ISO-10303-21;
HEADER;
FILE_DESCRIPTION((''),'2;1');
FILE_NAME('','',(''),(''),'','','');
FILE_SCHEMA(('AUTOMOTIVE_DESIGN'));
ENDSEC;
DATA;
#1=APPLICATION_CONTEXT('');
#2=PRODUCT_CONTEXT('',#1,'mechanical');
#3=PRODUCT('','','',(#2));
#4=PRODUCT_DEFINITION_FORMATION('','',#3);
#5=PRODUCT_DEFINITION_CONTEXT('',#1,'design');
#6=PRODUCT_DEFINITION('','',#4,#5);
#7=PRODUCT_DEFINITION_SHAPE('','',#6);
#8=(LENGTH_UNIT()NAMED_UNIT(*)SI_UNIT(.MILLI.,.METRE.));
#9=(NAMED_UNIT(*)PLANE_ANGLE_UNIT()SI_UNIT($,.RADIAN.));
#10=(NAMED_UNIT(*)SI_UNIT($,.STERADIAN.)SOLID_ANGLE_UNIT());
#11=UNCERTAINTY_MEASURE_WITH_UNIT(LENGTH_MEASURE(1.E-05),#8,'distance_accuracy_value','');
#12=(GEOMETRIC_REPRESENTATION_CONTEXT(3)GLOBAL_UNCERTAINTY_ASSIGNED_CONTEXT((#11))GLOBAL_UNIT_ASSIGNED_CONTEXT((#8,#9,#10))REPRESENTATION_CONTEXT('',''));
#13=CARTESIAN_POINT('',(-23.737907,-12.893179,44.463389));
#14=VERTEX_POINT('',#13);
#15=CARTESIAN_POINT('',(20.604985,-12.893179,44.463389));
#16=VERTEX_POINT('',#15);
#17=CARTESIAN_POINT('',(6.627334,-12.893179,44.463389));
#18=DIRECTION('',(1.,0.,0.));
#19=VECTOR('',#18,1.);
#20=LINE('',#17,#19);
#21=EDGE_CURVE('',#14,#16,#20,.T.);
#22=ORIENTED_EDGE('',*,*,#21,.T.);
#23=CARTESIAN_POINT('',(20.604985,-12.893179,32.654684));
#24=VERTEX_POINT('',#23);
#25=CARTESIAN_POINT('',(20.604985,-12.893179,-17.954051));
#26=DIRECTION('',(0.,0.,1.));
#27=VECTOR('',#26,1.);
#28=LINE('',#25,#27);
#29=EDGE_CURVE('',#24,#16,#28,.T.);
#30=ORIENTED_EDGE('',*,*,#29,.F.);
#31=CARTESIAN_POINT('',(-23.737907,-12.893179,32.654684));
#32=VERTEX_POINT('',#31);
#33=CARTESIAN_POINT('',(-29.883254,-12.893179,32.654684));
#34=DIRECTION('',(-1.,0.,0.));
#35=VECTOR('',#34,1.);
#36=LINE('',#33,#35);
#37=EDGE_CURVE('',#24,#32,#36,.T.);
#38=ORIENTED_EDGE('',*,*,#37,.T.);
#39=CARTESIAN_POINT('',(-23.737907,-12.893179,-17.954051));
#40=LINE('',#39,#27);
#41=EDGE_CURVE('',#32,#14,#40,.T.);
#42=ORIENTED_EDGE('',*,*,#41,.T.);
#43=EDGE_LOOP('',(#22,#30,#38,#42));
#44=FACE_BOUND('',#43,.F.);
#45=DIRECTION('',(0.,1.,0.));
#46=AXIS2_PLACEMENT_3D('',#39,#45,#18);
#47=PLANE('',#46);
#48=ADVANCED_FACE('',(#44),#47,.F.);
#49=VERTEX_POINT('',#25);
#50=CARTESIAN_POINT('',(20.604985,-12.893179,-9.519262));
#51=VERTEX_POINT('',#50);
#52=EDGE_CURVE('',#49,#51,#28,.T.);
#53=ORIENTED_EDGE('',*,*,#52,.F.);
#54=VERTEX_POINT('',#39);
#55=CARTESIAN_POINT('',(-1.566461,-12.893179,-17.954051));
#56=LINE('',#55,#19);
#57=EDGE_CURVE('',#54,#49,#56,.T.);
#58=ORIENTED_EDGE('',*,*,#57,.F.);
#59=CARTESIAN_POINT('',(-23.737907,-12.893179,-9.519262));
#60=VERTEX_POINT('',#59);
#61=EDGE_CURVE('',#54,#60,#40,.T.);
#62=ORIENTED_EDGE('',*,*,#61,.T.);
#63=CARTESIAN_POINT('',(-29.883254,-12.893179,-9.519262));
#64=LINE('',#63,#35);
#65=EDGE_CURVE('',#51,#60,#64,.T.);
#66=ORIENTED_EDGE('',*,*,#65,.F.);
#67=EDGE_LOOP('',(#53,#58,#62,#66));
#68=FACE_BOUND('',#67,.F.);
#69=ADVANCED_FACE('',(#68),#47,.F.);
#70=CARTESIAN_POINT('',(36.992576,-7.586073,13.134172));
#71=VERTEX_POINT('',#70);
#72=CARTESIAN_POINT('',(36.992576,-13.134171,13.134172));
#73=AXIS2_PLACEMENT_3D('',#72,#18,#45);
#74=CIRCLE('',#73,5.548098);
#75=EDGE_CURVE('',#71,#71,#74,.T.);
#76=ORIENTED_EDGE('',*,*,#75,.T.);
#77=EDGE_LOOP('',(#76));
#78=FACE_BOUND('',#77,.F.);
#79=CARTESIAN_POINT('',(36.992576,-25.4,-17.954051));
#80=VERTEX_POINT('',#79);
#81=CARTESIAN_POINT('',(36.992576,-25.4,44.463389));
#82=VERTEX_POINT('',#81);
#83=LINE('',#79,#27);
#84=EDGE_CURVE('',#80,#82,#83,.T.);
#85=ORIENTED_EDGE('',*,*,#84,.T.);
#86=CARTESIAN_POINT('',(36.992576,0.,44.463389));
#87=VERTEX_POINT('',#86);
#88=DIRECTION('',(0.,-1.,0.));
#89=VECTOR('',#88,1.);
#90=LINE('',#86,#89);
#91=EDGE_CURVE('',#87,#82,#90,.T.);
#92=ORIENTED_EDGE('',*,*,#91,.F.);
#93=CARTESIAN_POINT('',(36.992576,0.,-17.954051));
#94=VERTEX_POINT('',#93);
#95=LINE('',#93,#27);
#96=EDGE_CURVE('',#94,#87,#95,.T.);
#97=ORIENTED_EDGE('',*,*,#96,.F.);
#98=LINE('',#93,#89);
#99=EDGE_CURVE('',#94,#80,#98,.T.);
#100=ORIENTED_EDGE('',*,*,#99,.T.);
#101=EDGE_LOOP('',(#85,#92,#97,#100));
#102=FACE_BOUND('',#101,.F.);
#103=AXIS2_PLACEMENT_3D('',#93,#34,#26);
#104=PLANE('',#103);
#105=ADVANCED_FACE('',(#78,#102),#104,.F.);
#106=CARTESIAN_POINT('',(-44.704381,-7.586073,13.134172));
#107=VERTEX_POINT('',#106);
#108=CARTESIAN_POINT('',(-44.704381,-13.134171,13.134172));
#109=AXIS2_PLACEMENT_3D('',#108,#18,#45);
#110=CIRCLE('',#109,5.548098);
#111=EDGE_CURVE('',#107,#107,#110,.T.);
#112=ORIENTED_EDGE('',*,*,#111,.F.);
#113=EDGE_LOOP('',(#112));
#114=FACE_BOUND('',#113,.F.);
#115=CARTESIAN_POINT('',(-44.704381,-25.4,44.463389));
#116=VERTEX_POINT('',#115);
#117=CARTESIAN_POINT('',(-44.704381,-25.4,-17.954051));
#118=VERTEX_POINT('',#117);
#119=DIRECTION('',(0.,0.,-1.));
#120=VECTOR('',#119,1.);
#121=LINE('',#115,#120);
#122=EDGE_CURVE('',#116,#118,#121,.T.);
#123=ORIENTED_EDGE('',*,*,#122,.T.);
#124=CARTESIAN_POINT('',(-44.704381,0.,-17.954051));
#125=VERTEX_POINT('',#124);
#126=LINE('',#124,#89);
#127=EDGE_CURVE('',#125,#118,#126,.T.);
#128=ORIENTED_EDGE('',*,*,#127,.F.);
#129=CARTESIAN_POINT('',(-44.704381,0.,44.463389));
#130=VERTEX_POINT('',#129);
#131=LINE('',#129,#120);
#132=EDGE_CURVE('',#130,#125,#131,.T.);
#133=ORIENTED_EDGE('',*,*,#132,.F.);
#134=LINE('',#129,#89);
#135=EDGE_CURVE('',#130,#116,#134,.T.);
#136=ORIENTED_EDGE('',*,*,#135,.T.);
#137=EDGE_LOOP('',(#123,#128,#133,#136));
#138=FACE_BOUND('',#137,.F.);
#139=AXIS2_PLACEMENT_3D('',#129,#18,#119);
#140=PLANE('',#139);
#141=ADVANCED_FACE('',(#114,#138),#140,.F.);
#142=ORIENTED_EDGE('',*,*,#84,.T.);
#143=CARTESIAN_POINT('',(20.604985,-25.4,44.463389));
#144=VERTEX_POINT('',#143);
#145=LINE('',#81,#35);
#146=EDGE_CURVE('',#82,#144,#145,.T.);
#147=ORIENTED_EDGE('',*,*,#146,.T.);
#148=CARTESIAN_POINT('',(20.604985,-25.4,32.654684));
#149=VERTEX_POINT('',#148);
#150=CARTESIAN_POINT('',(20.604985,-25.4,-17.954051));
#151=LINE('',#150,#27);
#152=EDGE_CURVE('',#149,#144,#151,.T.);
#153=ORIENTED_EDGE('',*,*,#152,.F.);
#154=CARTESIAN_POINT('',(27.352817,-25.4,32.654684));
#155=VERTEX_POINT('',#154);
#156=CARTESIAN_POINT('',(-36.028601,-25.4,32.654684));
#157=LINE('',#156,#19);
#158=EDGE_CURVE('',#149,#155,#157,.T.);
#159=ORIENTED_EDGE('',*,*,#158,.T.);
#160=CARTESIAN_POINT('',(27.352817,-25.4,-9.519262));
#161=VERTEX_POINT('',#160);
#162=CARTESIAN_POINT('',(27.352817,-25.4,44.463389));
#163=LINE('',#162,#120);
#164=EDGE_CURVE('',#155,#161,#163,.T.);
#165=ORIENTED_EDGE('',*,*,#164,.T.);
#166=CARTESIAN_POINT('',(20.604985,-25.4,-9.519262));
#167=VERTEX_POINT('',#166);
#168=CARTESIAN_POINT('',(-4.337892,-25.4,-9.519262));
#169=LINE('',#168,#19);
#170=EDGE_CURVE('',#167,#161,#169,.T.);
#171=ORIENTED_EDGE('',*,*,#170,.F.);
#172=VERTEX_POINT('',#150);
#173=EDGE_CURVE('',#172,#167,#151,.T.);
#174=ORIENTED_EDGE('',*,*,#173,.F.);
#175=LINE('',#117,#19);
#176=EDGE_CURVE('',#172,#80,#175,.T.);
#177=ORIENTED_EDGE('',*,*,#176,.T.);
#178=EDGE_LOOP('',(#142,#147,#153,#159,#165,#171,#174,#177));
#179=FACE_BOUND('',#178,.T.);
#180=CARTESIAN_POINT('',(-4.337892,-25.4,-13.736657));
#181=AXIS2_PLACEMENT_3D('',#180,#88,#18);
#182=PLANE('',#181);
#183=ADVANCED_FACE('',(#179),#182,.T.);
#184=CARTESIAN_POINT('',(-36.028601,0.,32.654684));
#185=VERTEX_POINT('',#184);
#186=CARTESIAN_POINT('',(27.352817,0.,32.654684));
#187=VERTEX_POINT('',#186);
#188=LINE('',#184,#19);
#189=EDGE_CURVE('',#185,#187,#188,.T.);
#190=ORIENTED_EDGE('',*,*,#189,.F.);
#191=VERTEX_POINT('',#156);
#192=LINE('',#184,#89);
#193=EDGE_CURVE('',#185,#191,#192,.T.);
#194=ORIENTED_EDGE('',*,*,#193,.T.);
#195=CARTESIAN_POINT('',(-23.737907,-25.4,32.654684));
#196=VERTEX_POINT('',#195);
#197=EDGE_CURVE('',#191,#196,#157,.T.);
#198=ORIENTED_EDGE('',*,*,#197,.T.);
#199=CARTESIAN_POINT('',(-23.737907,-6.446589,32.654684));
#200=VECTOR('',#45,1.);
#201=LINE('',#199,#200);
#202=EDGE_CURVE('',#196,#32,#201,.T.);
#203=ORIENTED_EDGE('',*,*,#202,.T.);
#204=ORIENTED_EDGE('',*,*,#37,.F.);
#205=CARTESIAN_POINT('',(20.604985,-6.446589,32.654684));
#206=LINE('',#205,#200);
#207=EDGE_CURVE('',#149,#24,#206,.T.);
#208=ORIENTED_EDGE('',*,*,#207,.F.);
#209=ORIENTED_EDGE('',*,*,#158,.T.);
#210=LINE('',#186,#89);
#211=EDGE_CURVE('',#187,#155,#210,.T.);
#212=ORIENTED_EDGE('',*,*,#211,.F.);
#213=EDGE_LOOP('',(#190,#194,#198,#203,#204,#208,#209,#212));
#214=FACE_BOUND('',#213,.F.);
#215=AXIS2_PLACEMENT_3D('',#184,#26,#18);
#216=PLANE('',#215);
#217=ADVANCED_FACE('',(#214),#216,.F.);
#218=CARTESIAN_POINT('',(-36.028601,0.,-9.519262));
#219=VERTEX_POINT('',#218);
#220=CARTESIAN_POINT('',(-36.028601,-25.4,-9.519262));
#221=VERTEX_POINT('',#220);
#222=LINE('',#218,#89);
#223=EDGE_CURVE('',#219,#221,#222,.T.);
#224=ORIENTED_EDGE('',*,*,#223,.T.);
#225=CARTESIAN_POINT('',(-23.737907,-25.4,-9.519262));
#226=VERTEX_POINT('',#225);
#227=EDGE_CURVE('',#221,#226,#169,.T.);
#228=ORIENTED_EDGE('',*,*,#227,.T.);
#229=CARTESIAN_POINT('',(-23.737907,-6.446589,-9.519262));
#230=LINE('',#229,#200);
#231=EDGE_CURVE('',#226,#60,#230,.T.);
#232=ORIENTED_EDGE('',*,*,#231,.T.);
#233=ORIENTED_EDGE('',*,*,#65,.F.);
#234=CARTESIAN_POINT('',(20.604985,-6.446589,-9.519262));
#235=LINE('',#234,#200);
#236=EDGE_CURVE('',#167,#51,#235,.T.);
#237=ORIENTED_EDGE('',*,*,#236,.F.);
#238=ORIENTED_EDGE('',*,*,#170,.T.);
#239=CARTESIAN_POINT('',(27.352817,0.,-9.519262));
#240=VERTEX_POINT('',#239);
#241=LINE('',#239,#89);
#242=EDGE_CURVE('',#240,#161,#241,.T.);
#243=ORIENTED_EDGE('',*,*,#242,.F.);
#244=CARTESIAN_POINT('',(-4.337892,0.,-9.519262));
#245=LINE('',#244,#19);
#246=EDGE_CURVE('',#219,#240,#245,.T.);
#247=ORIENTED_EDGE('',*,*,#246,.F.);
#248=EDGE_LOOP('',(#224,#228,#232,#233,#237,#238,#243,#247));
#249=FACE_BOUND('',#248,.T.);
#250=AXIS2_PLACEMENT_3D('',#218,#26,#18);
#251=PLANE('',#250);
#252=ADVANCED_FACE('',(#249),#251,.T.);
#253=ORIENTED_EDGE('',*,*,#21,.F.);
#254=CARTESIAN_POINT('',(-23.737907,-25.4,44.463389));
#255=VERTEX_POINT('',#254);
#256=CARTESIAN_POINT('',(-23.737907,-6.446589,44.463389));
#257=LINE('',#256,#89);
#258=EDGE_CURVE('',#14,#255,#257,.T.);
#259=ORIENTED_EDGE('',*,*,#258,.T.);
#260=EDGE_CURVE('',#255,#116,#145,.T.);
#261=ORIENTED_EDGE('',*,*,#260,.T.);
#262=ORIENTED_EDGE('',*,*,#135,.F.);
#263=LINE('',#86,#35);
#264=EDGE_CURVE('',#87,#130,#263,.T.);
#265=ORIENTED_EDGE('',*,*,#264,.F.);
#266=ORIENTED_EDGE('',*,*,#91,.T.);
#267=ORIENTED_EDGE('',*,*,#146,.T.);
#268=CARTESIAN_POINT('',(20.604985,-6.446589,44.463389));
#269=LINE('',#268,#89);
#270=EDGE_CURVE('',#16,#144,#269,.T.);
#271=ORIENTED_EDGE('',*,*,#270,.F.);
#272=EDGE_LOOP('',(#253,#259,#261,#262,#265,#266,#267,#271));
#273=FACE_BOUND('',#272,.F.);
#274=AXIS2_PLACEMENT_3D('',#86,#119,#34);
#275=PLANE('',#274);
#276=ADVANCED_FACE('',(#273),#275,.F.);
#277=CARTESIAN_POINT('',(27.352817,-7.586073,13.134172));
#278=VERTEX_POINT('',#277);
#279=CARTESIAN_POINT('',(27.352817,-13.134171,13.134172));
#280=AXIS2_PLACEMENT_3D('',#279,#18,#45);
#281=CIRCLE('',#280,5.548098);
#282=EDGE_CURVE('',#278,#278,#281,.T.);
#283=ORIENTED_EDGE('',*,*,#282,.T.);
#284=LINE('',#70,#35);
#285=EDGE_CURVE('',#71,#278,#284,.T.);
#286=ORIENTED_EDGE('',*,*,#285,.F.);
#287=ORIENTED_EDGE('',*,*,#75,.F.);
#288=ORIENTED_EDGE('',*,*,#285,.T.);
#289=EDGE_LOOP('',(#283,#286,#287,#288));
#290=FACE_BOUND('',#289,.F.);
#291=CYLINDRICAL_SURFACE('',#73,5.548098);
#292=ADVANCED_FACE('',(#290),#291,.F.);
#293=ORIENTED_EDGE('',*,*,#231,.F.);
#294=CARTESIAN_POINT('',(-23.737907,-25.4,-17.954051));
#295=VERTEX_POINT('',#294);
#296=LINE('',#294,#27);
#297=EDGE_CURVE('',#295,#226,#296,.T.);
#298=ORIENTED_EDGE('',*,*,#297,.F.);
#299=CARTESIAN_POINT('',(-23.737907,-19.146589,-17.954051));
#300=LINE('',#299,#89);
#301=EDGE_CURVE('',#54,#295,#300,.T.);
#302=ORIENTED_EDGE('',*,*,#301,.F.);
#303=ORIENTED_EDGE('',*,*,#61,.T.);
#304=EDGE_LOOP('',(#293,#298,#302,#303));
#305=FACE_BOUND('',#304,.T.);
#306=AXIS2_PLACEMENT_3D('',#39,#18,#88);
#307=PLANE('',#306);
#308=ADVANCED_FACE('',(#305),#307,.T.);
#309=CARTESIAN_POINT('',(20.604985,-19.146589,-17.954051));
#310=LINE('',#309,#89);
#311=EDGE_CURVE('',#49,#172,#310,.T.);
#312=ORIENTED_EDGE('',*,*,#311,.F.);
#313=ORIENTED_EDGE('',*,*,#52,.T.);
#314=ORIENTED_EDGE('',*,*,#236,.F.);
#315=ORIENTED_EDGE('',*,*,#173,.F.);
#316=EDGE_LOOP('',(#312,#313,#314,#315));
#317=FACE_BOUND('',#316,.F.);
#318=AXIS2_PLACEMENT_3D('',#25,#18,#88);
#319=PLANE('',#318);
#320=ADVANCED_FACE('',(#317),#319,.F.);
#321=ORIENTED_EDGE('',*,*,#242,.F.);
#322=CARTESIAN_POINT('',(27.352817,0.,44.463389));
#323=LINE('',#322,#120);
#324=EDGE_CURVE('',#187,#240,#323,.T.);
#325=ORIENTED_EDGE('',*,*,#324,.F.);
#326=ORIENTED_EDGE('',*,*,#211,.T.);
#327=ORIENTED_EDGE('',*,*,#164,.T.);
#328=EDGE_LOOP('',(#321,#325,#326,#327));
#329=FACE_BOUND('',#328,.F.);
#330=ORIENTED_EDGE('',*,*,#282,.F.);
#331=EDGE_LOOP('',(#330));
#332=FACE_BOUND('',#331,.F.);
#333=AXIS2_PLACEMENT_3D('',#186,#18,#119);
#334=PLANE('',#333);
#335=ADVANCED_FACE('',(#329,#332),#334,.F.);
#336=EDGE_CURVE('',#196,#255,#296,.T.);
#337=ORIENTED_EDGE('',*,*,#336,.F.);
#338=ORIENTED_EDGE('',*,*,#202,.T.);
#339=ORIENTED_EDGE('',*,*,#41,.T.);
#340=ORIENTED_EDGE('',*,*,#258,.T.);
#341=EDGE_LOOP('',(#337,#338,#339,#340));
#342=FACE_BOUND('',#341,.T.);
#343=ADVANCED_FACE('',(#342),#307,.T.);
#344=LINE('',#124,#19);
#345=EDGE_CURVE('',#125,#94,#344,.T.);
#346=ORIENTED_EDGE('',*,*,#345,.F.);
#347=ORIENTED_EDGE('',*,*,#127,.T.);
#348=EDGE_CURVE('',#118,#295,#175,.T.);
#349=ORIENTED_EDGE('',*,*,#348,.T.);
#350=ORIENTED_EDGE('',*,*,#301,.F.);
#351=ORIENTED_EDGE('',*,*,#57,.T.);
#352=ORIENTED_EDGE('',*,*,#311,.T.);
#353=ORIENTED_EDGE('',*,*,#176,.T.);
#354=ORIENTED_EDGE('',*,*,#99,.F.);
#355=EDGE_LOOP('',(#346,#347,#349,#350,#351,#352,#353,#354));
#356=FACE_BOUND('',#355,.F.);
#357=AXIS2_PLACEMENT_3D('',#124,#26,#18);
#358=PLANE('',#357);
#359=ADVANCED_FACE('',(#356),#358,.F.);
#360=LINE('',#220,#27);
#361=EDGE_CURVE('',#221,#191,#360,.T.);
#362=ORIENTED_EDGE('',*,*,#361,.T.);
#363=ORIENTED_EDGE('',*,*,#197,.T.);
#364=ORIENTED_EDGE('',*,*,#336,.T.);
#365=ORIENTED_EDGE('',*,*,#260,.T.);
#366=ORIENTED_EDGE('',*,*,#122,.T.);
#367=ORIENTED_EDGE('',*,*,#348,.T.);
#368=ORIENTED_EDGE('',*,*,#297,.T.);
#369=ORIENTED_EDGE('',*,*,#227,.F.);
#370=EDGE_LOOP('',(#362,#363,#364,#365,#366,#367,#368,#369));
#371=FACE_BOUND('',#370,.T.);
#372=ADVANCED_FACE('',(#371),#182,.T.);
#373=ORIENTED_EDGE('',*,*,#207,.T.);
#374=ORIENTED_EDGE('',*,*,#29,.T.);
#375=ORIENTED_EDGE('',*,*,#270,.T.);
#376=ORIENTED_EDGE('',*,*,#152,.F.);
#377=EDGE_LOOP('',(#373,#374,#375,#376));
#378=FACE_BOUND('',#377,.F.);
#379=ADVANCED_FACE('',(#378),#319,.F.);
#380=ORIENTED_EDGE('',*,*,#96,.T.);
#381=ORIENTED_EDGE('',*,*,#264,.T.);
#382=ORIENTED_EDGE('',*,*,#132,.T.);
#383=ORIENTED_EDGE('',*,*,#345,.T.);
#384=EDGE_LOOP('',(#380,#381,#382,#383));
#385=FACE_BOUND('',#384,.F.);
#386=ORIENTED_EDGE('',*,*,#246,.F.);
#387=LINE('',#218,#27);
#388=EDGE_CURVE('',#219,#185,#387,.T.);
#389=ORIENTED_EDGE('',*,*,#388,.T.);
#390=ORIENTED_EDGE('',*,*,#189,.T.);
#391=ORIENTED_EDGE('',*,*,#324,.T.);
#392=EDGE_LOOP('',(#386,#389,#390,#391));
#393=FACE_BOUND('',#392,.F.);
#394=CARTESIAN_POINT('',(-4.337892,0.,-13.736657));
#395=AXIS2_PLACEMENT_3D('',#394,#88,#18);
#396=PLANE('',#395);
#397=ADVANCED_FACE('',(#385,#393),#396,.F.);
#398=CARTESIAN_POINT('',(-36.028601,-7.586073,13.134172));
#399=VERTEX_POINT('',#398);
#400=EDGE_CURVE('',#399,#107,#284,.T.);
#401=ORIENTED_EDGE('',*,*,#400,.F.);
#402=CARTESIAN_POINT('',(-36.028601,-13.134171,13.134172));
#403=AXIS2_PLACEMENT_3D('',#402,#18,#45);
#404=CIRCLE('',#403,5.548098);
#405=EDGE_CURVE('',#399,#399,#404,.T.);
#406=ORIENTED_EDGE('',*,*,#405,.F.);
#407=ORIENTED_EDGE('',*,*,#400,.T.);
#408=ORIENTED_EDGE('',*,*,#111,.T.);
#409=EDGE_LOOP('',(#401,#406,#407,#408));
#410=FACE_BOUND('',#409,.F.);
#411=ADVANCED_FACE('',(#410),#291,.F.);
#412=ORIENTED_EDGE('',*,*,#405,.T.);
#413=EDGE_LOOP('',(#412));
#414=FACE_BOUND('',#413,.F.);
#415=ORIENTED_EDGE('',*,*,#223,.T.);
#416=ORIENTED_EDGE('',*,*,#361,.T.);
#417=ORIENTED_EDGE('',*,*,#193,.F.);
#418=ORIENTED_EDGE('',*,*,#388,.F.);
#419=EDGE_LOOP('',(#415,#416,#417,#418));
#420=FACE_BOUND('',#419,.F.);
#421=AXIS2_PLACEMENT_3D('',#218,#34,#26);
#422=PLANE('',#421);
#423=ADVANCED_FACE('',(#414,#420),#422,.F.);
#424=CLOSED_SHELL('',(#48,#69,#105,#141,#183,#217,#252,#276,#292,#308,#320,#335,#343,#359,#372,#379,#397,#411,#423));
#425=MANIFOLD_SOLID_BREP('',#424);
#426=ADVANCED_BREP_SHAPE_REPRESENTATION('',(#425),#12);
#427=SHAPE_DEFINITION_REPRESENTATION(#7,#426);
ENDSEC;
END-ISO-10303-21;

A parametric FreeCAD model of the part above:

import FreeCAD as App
import Part
import Sketcher
from FreeCAD import Vector
Q = App.Units.Quantity

doc = App.newDocument("Part")
body = doc.addObject("PartDesign::Body", "Body")

# Sketch on XZ plane
sketch1 = body.newObject("Sketcher::SketchObject", "Sketch")
sketch1.AttachmentSupport = (doc.getObject("XZ_Plane"), [""])
sketch1.MapMode = "FlatFace"
sketch1.addGeometry([
    Part.LineSegment(Vector(-44.704381, -17.954051, 0), Vector(36.992576, -17.954051, 0)),  # 0
    Part.LineSegment(Vector(36.992576, -17.954051, 0), Vector(36.992576, 44.463389, 0)),  # 1
    Part.LineSegment(Vector(36.992576, 44.463389, 0), Vector(-44.704381, 44.463389, 0)),  # 2
    Part.LineSegment(Vector(-44.704381, 44.463389, 0), Vector(-44.704381, -17.954051, 0)),  # 3
    Part.LineSegment(Vector(27.352817, -9.519262, 0), Vector(-36.028601, -9.519262, 0)),  # 4
    Part.LineSegment(Vector(-36.028601, -9.519262, 0), Vector(-36.028601, 32.654684, 0)),  # 5
    Part.LineSegment(Vector(-36.028601, 32.654684, 0), Vector(27.352817, 32.654684, 0)),  # 6
    Part.LineSegment(Vector(27.352817, 32.654684, 0), Vector(27.352817, -9.519262, 0)),  # 7
], False)
sketch1.addConstraint([
    Sketcher.Constraint("Coincident", 0, 2, 1, 1),
    Sketcher.Constraint("Coincident", 1, 2, 2, 1),
    Sketcher.Constraint("Coincident", 2, 2, 3, 1),
    Sketcher.Constraint("Coincident", 3, 2, 0, 1),
    Sketcher.Constraint("Coincident", 4, 2, 5, 1),
    Sketcher.Constraint("Coincident", 5, 2, 6, 1),
    Sketcher.Constraint("Coincident", 6, 2, 7, 1),
    Sketcher.Constraint("Coincident", 7, 2, 4, 1),
    Sketcher.Constraint("Horizontal", 0),
    Sketcher.Constraint("Vertical", 1),
    Sketcher.Constraint("Horizontal", 2),
    Sketcher.Constraint("Vertical", 3),
    Sketcher.Constraint("Horizontal", 4),
    Sketcher.Constraint("Vertical", 5),
    Sketcher.Constraint("Horizontal", 6),
    Sketcher.Constraint("Vertical", 7),
    Sketcher.Constraint("DistanceX", 4, 2, 4, 1, 63.381419),
    Sketcher.Constraint("DistanceY", 1, 1, 1, 2, 62.41744),
    Sketcher.Constraint("DistanceX", 4, 2, -1, 1, 36.028601),
    Sketcher.Constraint("DistanceX", 2, 2, 6, 2, 72.057199),
    Sketcher.Constraint("DistanceX", 0, 1, 0, 2, 81.696957),
    Sketcher.Constraint("DistanceY", 5, 1, 5, 2, 42.173946),
    Sketcher.Constraint("DistanceY", 0, 2, -1, 1, 17.954051),
    Sketcher.Constraint("DistanceY", 3, 2, 4, 2, 8.434789),
])
pad1 = body.newObject("PartDesign::Pad", "Pad")
pad1.Profile = sketch1
pad1.Length = Q("1 in")

# Sketch on XY plane
sketch2 = body.newObject("Sketcher::SketchObject", "Sketch001")
sketch2.AttachmentSupport = (doc.getObject("XY_Plane"), [""])
sketch2.MapMode = "FlatFace"
sketch2.AttachmentOffset = App.Placement(Vector(0, 0, -17.954051), App.Rotation())
sketch2.addGeometry([
    Part.LineSegment(Vector(-23.737907, -25.4, 0), Vector(-23.737907, -12.893178, 0)),
    Part.LineSegment(Vector(-23.737907, -12.893178, 0), Vector(20.604985, -12.893178, 0)),
    Part.LineSegment(Vector(20.604985, -12.893178, 0), Vector(20.604985, -25.4, 0)),
    Part.LineSegment(Vector(20.604985, -25.4, 0), Vector(-23.737907, -25.4, 0)),
], False)
sketch2.addConstraint([
    Sketcher.Constraint("Coincident", 0, 2, 1, 1),
    Sketcher.Constraint("Coincident", 1, 2, 2, 1),
    Sketcher.Constraint("Coincident", 2, 2, 3, 1),
    Sketcher.Constraint("Coincident", 3, 2, 0, 1),
    Sketcher.Constraint("Vertical", 0),
    Sketcher.Constraint("Horizontal", 1),
    Sketcher.Constraint("Vertical", 2),
    Sketcher.Constraint("Horizontal", 3),
    Sketcher.Constraint("DistanceY", 2, 2, -1, 1, Q("1 in")),
    Sketcher.Constraint("DistanceY", 0, 1, 0, 2, 12.506821),
    Sketcher.Constraint("DistanceX", 1, 1, 1, 2, 44.342892),
    Sketcher.Constraint("DistanceX", 0, 2, -1, 1, 23.737907),
])
pocket1 = body.newObject("PartDesign::Pocket", "Pocket")
pocket1.Profile = sketch2
pocket1.Length = Q("3.97 in")
pocket1.Reversed = True

# Sketch on YZ plane
sketch3 = body.newObject("Sketcher::SketchObject", "Sketch002")
sketch3.AttachmentSupport = (doc.getObject("YZ_Plane"), [""])
sketch3.MapMode = "FlatFace"
sketch3.AttachmentOffset = App.Placement(Vector(0, 0, 36.992576), App.Rotation())
sketch3.addGeometry(Part.Circle(Vector(-13.134171, 13.134172, 0), Vector(0, 0, 1), 5.548098), False)
sketch3.addConstraint([
    Sketcher.Constraint("Diameter", 0, 11.096197),
    Sketcher.Constraint("DistanceX", 0, 3, -1, 1, 13.134171),
    Sketcher.Constraint("DistanceY", -1, 1, 0, 3, 13.134172),
])
pocket2 = body.newObject("PartDesign::Pocket", "Pocket001")
pocket2.Profile = sketch3
pocket2.Length = Q("5.12 in")

doc.recompute()
